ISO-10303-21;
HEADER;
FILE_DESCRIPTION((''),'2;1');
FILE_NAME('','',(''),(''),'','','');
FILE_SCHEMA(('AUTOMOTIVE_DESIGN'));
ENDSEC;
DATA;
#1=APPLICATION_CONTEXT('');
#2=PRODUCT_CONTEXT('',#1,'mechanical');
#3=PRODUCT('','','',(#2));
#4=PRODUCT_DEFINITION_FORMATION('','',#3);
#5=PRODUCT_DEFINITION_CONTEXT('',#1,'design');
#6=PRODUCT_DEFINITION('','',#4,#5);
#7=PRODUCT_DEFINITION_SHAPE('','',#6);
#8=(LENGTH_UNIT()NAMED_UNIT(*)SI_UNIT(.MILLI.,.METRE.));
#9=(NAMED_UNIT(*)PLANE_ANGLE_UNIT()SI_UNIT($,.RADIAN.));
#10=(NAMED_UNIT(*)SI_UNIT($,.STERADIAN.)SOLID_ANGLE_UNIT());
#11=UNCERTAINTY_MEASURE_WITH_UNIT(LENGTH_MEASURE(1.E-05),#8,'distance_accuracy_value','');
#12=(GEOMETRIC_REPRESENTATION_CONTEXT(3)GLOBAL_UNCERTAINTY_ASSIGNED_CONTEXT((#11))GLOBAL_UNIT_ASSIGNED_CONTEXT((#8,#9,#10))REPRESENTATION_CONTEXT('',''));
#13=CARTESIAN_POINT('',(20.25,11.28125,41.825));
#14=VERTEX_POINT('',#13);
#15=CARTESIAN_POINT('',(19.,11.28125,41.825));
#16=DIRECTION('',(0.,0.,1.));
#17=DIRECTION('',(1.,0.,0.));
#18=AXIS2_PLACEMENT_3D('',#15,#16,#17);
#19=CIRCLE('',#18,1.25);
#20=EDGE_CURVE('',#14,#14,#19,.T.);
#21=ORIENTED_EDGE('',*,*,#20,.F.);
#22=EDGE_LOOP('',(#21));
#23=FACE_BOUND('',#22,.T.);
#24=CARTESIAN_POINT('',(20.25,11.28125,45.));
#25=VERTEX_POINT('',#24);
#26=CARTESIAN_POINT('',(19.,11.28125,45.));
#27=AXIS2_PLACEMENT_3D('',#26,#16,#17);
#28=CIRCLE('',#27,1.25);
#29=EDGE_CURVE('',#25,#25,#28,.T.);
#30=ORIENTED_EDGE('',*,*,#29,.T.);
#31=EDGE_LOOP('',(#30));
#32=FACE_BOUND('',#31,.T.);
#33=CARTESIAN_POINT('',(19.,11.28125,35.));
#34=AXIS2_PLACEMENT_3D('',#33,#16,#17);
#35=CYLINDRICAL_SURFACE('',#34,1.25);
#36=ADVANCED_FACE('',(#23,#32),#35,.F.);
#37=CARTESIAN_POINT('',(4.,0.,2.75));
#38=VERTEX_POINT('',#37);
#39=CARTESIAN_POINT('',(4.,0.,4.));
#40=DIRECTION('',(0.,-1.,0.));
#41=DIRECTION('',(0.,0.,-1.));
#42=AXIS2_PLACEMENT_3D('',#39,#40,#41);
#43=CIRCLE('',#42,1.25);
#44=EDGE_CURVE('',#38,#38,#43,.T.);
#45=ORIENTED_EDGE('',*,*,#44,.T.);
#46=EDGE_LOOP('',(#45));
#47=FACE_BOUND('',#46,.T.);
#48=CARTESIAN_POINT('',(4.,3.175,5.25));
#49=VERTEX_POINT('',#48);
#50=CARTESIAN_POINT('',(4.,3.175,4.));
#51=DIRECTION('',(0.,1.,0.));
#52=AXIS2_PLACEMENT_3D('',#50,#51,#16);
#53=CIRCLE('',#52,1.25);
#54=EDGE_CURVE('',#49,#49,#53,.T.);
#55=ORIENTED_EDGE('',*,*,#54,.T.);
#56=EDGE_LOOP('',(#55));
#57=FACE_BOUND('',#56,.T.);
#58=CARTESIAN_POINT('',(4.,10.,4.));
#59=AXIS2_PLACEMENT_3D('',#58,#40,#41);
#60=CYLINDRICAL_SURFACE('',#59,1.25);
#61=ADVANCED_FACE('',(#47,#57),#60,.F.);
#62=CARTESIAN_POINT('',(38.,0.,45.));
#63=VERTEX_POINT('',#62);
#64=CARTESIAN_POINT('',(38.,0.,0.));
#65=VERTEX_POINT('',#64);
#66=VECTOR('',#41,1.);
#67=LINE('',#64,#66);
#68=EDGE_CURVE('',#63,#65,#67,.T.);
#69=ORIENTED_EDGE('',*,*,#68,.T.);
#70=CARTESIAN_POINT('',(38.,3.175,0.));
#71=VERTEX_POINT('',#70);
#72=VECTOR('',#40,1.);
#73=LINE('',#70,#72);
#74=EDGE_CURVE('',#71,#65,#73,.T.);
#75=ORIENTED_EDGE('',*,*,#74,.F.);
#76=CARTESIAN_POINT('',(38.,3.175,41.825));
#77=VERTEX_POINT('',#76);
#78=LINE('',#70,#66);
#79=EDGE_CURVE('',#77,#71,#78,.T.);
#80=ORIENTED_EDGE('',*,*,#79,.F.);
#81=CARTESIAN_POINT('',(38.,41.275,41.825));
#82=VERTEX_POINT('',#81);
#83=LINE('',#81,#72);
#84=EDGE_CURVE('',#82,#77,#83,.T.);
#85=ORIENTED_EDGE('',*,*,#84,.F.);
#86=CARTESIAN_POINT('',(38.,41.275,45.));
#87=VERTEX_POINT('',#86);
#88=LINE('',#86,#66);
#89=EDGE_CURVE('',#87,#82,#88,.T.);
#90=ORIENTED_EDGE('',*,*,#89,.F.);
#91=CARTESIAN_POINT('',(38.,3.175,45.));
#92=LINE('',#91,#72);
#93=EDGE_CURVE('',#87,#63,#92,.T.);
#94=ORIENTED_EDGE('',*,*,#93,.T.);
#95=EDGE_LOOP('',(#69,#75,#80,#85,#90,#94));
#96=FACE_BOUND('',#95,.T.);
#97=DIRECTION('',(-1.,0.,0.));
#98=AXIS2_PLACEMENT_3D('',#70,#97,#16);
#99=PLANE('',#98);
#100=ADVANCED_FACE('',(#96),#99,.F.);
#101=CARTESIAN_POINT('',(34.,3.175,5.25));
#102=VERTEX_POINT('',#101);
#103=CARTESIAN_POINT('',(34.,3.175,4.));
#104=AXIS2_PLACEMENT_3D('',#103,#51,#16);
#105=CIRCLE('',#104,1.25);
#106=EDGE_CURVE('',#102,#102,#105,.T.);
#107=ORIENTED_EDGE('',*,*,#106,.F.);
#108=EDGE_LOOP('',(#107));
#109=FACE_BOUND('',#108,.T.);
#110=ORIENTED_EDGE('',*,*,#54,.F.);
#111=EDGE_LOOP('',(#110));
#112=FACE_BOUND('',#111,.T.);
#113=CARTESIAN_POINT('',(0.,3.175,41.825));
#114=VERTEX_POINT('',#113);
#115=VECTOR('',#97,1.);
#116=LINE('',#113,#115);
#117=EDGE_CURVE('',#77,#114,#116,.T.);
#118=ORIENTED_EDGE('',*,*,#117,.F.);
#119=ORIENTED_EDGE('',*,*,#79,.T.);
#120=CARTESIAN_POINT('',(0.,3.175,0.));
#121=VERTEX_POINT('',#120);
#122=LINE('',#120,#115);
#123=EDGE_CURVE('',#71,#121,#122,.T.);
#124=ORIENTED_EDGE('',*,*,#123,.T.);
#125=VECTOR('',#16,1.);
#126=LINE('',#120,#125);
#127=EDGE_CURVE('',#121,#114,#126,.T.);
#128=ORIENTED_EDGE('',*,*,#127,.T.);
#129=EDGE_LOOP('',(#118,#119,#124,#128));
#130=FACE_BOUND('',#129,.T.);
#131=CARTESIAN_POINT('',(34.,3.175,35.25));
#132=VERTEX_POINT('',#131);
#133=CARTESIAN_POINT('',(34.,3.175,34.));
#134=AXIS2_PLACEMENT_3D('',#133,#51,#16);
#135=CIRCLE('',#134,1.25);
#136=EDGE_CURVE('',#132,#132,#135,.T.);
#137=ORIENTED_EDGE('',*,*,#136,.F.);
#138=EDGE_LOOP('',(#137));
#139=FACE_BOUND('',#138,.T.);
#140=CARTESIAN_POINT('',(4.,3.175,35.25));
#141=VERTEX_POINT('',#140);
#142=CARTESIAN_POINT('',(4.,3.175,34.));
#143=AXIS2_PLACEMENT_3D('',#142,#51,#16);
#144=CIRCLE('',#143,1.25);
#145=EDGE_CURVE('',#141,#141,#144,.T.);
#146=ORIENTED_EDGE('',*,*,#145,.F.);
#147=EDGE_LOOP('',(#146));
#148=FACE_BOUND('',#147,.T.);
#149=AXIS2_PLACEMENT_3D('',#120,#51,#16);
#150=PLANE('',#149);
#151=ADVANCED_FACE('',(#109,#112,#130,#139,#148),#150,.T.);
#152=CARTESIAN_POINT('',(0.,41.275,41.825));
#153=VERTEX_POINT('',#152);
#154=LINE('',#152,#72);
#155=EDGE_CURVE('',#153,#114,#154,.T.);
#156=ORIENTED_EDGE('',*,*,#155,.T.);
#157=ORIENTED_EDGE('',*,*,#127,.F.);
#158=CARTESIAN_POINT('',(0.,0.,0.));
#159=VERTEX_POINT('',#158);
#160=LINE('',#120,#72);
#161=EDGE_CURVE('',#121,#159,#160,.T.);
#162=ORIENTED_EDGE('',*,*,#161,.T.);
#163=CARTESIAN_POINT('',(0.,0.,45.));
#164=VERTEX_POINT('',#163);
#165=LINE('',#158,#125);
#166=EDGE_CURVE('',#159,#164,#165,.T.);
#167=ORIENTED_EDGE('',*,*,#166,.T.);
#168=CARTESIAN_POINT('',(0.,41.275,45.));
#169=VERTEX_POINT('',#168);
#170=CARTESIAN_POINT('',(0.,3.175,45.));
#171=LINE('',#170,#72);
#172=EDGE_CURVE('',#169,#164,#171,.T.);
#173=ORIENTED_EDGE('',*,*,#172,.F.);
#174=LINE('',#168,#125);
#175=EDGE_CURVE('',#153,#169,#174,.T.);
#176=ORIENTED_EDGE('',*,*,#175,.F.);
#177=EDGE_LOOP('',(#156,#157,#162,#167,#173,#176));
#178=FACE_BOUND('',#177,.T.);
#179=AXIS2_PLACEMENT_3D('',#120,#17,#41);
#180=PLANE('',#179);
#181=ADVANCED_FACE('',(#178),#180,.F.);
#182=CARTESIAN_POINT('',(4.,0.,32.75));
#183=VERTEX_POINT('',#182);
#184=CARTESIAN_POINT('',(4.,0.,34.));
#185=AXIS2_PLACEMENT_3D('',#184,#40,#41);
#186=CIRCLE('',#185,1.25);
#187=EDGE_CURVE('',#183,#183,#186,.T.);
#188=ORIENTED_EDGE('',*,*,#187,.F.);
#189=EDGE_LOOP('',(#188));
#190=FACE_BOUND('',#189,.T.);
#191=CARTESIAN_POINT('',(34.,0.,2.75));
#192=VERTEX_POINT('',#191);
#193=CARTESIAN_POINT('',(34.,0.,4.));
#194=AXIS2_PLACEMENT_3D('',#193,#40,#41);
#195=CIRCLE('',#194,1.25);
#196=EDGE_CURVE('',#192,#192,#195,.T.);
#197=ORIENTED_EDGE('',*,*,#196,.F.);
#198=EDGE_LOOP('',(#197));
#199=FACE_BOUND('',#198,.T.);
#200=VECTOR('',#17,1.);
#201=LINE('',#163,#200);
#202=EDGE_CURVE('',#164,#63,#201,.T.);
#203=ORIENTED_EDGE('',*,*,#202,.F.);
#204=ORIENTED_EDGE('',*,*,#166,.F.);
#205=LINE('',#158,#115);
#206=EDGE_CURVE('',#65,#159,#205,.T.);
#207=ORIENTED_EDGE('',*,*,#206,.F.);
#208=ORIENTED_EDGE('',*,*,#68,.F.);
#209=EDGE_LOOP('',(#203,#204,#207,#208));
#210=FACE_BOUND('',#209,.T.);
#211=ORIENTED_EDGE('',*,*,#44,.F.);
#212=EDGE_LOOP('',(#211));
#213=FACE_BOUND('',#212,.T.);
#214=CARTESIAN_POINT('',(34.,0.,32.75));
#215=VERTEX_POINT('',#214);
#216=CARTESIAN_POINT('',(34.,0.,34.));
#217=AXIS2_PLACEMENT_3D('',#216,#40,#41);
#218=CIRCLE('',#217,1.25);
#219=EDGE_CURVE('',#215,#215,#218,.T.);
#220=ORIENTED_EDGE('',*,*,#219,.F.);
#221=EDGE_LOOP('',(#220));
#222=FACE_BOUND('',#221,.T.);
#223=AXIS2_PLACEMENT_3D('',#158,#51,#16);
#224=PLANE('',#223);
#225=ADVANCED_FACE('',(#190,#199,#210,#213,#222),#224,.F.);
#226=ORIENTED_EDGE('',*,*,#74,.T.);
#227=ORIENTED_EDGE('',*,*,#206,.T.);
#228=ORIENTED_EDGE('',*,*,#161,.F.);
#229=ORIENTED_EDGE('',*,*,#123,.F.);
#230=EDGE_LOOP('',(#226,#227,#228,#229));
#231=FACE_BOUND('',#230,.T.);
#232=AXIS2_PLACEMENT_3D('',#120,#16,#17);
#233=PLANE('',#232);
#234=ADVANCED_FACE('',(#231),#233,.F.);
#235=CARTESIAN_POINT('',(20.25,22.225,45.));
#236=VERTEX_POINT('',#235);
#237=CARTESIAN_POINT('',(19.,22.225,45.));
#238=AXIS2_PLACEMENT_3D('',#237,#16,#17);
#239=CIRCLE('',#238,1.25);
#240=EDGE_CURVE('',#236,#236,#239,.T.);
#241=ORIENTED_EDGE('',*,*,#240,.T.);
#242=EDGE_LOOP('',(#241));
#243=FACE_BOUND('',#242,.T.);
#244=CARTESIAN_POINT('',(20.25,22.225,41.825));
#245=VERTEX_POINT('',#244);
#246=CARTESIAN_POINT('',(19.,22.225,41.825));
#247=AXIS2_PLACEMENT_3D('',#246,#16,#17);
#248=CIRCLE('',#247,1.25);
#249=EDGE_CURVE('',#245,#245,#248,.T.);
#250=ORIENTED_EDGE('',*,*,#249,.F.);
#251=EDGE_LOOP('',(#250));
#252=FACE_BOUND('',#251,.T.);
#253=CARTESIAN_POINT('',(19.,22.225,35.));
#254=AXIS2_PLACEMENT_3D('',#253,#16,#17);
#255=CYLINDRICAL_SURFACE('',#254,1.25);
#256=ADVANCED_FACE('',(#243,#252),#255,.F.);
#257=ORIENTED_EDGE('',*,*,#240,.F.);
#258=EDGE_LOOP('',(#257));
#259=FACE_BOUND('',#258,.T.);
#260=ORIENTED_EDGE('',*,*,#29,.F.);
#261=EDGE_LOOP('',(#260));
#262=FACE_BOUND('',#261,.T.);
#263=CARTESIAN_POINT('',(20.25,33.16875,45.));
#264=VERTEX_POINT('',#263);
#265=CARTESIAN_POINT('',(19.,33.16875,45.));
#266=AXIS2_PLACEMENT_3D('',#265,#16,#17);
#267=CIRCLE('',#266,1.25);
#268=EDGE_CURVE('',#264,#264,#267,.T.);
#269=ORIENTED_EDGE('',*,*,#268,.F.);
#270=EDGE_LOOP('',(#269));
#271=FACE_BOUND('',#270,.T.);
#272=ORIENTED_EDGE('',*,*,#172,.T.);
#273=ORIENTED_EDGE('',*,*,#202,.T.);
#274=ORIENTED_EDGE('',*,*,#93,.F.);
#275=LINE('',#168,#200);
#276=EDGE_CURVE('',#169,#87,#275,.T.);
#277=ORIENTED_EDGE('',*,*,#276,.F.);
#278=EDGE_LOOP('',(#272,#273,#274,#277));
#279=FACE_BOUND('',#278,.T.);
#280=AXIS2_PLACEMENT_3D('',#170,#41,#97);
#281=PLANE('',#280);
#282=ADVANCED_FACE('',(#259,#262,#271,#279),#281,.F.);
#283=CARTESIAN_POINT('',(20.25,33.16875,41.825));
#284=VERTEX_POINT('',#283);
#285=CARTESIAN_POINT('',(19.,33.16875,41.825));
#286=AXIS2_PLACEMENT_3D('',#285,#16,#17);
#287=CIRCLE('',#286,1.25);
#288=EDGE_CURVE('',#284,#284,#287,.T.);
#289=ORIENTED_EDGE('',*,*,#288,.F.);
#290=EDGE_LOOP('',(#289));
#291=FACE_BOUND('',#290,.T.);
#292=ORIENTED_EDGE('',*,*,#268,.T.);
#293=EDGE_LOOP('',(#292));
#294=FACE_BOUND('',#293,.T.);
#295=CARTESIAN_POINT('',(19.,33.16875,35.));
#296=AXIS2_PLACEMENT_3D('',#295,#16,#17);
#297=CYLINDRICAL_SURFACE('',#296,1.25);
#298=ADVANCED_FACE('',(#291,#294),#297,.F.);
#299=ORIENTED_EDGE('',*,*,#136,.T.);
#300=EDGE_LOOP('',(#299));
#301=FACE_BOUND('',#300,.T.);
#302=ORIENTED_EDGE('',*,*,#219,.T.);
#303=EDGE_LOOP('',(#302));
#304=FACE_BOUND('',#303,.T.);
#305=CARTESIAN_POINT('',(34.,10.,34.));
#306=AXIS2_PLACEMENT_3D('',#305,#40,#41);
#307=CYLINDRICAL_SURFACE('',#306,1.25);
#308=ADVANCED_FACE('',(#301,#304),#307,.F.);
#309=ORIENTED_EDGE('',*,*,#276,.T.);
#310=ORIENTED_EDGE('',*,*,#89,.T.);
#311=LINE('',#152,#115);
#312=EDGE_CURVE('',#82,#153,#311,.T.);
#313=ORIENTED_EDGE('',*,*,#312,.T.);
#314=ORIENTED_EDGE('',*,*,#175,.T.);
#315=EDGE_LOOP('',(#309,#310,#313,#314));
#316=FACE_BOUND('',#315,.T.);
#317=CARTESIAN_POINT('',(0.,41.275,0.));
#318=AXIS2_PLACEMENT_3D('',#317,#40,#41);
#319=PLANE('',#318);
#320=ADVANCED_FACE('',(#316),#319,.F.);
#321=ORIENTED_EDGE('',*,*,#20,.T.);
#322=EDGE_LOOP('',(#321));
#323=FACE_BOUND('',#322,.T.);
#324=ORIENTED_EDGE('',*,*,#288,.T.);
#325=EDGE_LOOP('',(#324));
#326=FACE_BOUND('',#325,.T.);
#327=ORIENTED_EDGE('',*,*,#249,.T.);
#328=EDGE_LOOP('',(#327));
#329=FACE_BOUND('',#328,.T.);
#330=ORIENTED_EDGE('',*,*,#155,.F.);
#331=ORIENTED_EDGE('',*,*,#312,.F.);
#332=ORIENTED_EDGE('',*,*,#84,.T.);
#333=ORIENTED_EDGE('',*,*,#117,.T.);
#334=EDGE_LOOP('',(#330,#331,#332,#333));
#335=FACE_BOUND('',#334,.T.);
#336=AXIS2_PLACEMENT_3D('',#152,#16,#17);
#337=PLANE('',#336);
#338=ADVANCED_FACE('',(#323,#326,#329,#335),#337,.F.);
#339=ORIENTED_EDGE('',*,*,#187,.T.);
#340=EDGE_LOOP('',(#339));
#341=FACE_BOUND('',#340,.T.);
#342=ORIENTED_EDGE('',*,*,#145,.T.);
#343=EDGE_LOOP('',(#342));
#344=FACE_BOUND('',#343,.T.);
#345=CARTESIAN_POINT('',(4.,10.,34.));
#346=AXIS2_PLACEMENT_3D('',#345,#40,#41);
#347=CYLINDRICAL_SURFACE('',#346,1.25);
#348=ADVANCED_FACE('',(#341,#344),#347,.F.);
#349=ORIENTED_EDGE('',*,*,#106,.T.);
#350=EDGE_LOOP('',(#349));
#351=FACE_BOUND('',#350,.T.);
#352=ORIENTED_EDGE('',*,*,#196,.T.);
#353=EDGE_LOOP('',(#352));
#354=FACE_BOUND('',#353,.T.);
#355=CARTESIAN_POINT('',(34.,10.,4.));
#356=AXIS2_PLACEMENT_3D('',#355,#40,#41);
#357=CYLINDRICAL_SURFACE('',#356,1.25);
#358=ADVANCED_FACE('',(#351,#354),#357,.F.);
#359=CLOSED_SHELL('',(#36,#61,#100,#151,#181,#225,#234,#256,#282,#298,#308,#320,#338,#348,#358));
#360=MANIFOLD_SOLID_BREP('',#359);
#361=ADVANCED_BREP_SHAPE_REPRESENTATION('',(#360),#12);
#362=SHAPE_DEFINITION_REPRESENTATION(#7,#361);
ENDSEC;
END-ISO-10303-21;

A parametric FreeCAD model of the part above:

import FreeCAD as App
import Part
import Sketcher
from FreeCAD import Vector
Q = App.Units.Quantity

doc = App.newDocument("Part")
body = doc.addObject("PartDesign::Body", "Body")

sketch1 = doc.addObject("Sketcher::SketchObject", "Sketch")
body.addObject(sketch1)
sketch1.AttachmentSupport = (doc.XZ_Plane, [""])
sketch1.MapMode = "FlatFace"
sketch1.addGeometry(Part.LineSegment(Vector(0, 0, 0), Vector(0, 45, 0)), False)
sketch1.addGeometry(Part.LineSegment(Vector(0, 45, 0), Vector(38, 45, 0)), False)
sketch1.addGeometry(Part.LineSegment(Vector(38, 45, 0), Vector(38, 0, 0)), False)
sketch1.addGeometry(Part.LineSegment(Vector(38, 0, 0), Vector(0, 0, 0)), False)
sketch1.addConstraint(Sketcher.Constraint("Coincident", 0, 2, 1, 1))
sketch1.addConstraint(Sketcher.Constraint("Coincident", 1, 2, 2, 1))
sketch1.addConstraint(Sketcher.Constraint("Coincident", 2, 2, 3, 1))
sketch1.addConstraint(Sketcher.Constraint("Coincident", 3, 2, 0, 1))
sketch1.addConstraint(Sketcher.Constraint("Vertical", 0))
sketch1.addConstraint(Sketcher.Constraint("Horizontal", 1))
sketch1.addConstraint(Sketcher.Constraint("Vertical", 2))
sketch1.addConstraint(Sketcher.Constraint("Horizontal", 3))
sketch1.addConstraint(Sketcher.Constraint("Coincident", 3, 2, -1, 1))
sketch1.addConstraint(Sketcher.Constraint("DistanceX", 1, 1, 1, 2, Q("38 mm")))
sketch1.addConstraint(Sketcher.Constraint("DistanceY", 0, 1, 0, 2, Q("45 mm")))
pad1 = doc.addObject("PartDesign::Pad", "Pad")
body.addObject(pad1)
pad1.Profile = sketch1
pad1.Length = 3.175
pad1.Reversed = True

sketch2 = doc.addObject("Sketcher::SketchObject", "Sketch001")
body.addObject(sketch2)
sketch2.AttachmentSupport = (doc.XZ_Plane, [""])
sketch2.MapMode = "FlatFace"
sketch2.AttachmentOffset = App.Placement(Vector(0, 0, -3.175), App.Rotation())
sketch2.addGeometry(Part.LineSegment(Vector(0, 41.8, 0), Vector(0, 45, 0)), False)
sketch2.addGeometry(Part.LineSegment(Vector(0, 45, 0), Vector(38, 45, 0)), False)
sketch2.addGeometry(Part.LineSegment(Vector(38, 45, 0), Vector(38, 41.8, 0)), False)
sketch2.addGeometry(Part.LineSegment(Vector(38, 41.8, 0), Vector(0, 41.8, 0)), False)
sketch2.addConstraint(Sketcher.Constraint("Coincident", 0, 2, 1, 1))
sketch2.addConstraint(Sketcher.Constraint("Coincident", 1, 2, 2, 1))
sketch2.addConstraint(Sketcher.Constraint("Coincident", 2, 2, 3, 1))
sketch2.addConstraint(Sketcher.Constraint("Coincident", 3, 2, 0, 1))
sketch2.addConstraint(Sketcher.Constraint("Vertical", 0))
sketch2.addConstraint(Sketcher.Constraint("Horizontal", 1))
sketch2.addConstraint(Sketcher.Constraint("Vertical", 2))
sketch2.addConstraint(Sketcher.Constraint("Horizontal", 3))
sketch2.addConstraint(Sketcher.Constraint("PointOnObject", 0, 2, -2))
sketch2.addConstraint(Sketcher.Constraint("DistanceX", 1, 1, 1, 2, Q("38 mm")))
sketch2.addConstraint(Sketcher.Constraint("DistanceY", -1, 1, 0, 2, Q("45 mm")))
sketch2.addConstraint(Sketcher.Constraint("DistanceY", 0, 1, 0, 2, Q("3.175 mm")))
pad2 = doc.addObject("PartDesign::Pad", "Pad001")
body.addObject(pad2)
pad2.Profile = sketch2
pad2.Length = 38.1
pad2.Reversed = True

sketch3 = doc.addObject("Sketcher::SketchObject", "Sketch002")
body.addObject(sketch3)
sketch3.AttachmentSupport = (doc.XZ_Plane, [""])
sketch3.MapMode = "FlatFace"
sketch3.addGeometry(Part.Circle(Vector(4, 34, 0), Vector(0, 0, 1), 1.2), False)
sketch3.addGeometry(Part.Circle(Vector(34, 34, 0), Vector(0, 0, 1), 1.2), False)
sketch3.addGeometry(Part.Circle(Vector(4, 4, 0), Vector(0, 0, 1), 1.2), False)
sketch3.addGeometry(Part.Circle(Vector(34, 4, 0), Vector(0, 0, 1), 1.2), False)
sketch3.addConstraint(Sketcher.Constraint("Equal", 0, 1))
sketch3.addConstraint(Sketcher.Constraint("Equal", 1, 2))
sketch3.addConstraint(Sketcher.Constraint("Equal", 2, 3))
sketch3.addConstraint(Sketcher.Constraint("Horizontal", 0, 3, 1, 3))
sketch3.addConstraint(Sketcher.Constraint("Horizontal", 2, 3, 3, 3))
sketch3.addConstraint(Sketcher.Constraint("Vertical", 0, 3, 2, 3))
sketch3.addConstraint(Sketcher.Constraint("Vertical", 1, 3, 3, 3))
sketch3.addConstraint(Sketcher.Constraint("Diameter", 0, Q("2.5 mm")))
sketch3.addConstraint(Sketcher.Constraint("DistanceX", -1, 1, 0, 3, Q("4 mm")))
sketch3.addConstraint(Sketcher.Constraint("DistanceY", -1, 1, 0, 3, Q("34 mm")))
sketch3.addConstraint(Sketcher.Constraint("DistanceX", -1, 1, 1, 3, Q("34 mm")))
sketch3.addConstraint(Sketcher.Constraint("DistanceY", -1, 1, 2, 3, Q("4 mm")))
pocket1 = doc.addObject("PartDesign::Pocket", "Pocket")
body.addObject(pocket1)
pocket1.Profile = sketch3
pocket1.Length = 10

sketch4 = doc.addObject("Sketcher::SketchObject", "Sketch003")
body.addObject(sketch4)
sketch4.AttachmentSupport = (doc.XY_Plane, [""])
sketch4.MapMode = "FlatFace"
sketch4.AttachmentOffset = App.Placement(Vector(0, 0, 45), App.Rotation())
sketch4.addGeometry(Part.Circle(Vector(19, 11.3, 0), Vector(0, 0, 1), 1.2), False)
sketch4.addGeometry(Part.Circle(Vector(19, 33.2, 0), Vector(0, 0, 1), 1.2), False)
sketch4.addGeometry(Part.Circle(Vector(19, 22.2, 0), Vector(0, 0, 1), 1.2), False)
sketch4.addConstraint(Sketcher.Constraint("Equal", 0, 1))
sketch4.addConstraint(Sketcher.Constraint("Equal", 1, 2))
sketch4.addConstraint(Sketcher.Constraint("Vertical", 0, 3, 1, 3))
sketch4.addConstraint(Sketcher.Constraint("Vertical", 1, 3, 2, 3))
sketch4.addConstraint(Sketcher.Constraint("Diameter", 0, Q("2.5 mm")))
sketch4.addConstraint(Sketcher.Constraint("DistanceX", -1, 1, 0, 3, Q("19 mm")))
sketch4.addConstraint(Sketcher.Constraint("DistanceY", -1, 1, 2, 3, Q("22.225 mm")))
sketch4.addConstraint(Sketcher.Constraint("DistanceY", 0, 3, 1, 3, Q("21.8875 mm")))
sketch4.addConstraint(Sketcher.Constraint("DistanceY", -1, 1, 0, 3, Q("11.28125 mm")))
pocket2 = doc.addObject("PartDesign::Pocket", "Pocket001")
body.addObject(pocket2)
pocket2.Profile = sketch4
pocket2.Length = 10

doc.recompute()
